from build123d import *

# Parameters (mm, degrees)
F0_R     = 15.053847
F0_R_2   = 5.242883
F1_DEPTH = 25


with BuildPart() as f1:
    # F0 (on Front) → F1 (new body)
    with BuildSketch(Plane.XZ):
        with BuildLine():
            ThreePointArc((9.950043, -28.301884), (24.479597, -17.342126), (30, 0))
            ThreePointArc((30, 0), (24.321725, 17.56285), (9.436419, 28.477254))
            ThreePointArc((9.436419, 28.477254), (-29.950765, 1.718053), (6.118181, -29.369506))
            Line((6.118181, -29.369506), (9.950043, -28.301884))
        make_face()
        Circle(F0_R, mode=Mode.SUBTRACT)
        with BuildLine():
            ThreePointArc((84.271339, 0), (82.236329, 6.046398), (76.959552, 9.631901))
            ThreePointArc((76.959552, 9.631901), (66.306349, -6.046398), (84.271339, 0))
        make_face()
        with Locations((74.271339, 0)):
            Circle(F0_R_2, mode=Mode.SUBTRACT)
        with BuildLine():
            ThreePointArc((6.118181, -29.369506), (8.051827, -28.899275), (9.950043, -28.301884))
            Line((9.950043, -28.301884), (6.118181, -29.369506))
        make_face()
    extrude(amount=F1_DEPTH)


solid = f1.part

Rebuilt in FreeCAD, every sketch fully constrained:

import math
import FreeCAD as App
import Part
import Sketcher
Q = App.Units.Quantity

doc = App.newDocument("Part")
params = doc.addObject("Spreadsheet::Sheet", "Params")
for row, (alias, value) in enumerate([
    ("sketch1_radius", "29.999999 mm"),
    ("sketch1_radius2", "10.000002 mm"),
    ("pad1_length", "25 mm"),
], start=1):
    params.set(f"A{row}", alias)
    params.set(f"B{row}", "=" + value)
    params.setAlias(f"B{row}", alias)

body = doc.addObject("PartDesign::Body", "Body")
body.AllowCompound = True

# Sketch on XZ plane
sketch1 = body.newObject("Sketcher::SketchObject", "Sketch")
sketch1.AttachmentSupport = (doc.getObject("XZ_Plane"), [""])
sketch1.MapMode = "FlatFace"
sketch1.addGeometry([
    Part.ArcOfCircle(Part.Circle(App.Vector(0.000001, 0, 0), App.Vector(0, 0, 1), 29.999999), math.radians(-70.629947), math.radians(0.000001)),  # 0
    Part.ArcOfCircle(Part.Circle(App.Vector(0.000001, 0, 0), App.Vector(0, 0, 1), 29.999999), math.radians(-0.000001), math.radians(71.666514)),  # 1
    Part.ArcOfCircle(Part.Circle(App.Vector(0, 0, 0), App.Vector(0, 0, 1), 30), math.radians(71.666513), math.radians(281.767418)),  # 2
    Part.ArcOfCircle(Part.Circle(App.Vector(0.000009, -0.000045, 0), App.Vector(0, 0, 1), 29.999955), math.radians(-78.232582), math.radians(-70.629934)),  # 3
    Part.Circle(App.Vector(0, 0, 0), App.Vector(0, 0, 1), 15.053847),  # 4
    Part.ArcOfCircle(Part.Circle(App.Vector(74.271337, -0.000001, 0), App.Vector(0, 0, 1), 10.000002), math.radians(0.000006), math.radians(74.405853)),  # 5
    Part.ArcOfCircle(Part.Circle(App.Vector(74.271339, 0, 0), App.Vector(0, 0, 1), 10), math.radians(74.405861), math.radians(359.999998)),  # 6
    Part.Circle(App.Vector(74.271339, 0, 0), App.Vector(0, 0, 1), 5.242883),  # 7
], False)
sketch1.addConstraint([
    Sketcher.Constraint("Coincident", 0, 2, 1, 1),
    Sketcher.Constraint("Coincident", 1, 2, 2, 1),
    Sketcher.Constraint("Coincident", 2, 2, 3, 1),
    Sketcher.Constraint("Coincident", 3, 2, 0, 1),
    Sketcher.Constraint("Coincident", 5, 1, 6, 2),
    Sketcher.Constraint("Coincident", 6, 1, 5, 2),
    Sketcher.Constraint("Coincident", 0, 3, -1, 1),
    Sketcher.Constraint("Coincident", 1, 3, -1, 1),
    Sketcher.Constraint("Coincident", 2, 3, -1, 1),
    Sketcher.Constraint("Coincident", 4, 3, -1, 1),
    Sketcher.Constraint("Coincident", 7, 3, 5, 3),
    Sketcher.Constraint("PointOnObject", 5, 3, -1),
    Sketcher.Constraint("PointOnObject", 6, 3, -1),
    Sketcher.Constraint("PointOnObject", 0, 2, -1),
    Sketcher.Constraint("PointOnObject", 5, 1, -1),
    Sketcher.Constraint("Radius", 0, Q("29.999999 mm")),
    Sketcher.Constraint("Radius", 5, Q("10.000002 mm")),
    Sketcher.Constraint("Diameter", 4, Q("30.107694 mm")),
    Sketcher.Constraint("Diameter", 7, Q("10.485766 mm")),
    Sketcher.Constraint("Radius", 3, Q("29.999955 mm")),
    Sketcher.Constraint("DistanceY", -1, 1, 6, 1, Q("9.631901 mm")),
    Sketcher.Constraint("DistanceY", 3, 3, 1, 2, Q("28.477299 mm")),
    Sketcher.Constraint("DistanceX", -1, 1, 6, 3, Q("74.271339 mm")),
    Sketcher.Constraint("DistanceX", -1, 1, 2, 2, Q("6.118181 mm")),
    Sketcher.Constraint("DistanceY", 2, 2, 3, 2, Q("1.067622 mm")),
])
sketch1.setExpression("Constraints[15]", "Params.sketch1_radius")
sketch1.setExpression("Constraints[16]", "Params.sketch1_radius2")
pad1 = body.newObject("PartDesign::Pad", "Pad")
pad1.Profile = sketch1
pad1.setExpression("Length", "Params.pad1_length")

doc.recompute()
